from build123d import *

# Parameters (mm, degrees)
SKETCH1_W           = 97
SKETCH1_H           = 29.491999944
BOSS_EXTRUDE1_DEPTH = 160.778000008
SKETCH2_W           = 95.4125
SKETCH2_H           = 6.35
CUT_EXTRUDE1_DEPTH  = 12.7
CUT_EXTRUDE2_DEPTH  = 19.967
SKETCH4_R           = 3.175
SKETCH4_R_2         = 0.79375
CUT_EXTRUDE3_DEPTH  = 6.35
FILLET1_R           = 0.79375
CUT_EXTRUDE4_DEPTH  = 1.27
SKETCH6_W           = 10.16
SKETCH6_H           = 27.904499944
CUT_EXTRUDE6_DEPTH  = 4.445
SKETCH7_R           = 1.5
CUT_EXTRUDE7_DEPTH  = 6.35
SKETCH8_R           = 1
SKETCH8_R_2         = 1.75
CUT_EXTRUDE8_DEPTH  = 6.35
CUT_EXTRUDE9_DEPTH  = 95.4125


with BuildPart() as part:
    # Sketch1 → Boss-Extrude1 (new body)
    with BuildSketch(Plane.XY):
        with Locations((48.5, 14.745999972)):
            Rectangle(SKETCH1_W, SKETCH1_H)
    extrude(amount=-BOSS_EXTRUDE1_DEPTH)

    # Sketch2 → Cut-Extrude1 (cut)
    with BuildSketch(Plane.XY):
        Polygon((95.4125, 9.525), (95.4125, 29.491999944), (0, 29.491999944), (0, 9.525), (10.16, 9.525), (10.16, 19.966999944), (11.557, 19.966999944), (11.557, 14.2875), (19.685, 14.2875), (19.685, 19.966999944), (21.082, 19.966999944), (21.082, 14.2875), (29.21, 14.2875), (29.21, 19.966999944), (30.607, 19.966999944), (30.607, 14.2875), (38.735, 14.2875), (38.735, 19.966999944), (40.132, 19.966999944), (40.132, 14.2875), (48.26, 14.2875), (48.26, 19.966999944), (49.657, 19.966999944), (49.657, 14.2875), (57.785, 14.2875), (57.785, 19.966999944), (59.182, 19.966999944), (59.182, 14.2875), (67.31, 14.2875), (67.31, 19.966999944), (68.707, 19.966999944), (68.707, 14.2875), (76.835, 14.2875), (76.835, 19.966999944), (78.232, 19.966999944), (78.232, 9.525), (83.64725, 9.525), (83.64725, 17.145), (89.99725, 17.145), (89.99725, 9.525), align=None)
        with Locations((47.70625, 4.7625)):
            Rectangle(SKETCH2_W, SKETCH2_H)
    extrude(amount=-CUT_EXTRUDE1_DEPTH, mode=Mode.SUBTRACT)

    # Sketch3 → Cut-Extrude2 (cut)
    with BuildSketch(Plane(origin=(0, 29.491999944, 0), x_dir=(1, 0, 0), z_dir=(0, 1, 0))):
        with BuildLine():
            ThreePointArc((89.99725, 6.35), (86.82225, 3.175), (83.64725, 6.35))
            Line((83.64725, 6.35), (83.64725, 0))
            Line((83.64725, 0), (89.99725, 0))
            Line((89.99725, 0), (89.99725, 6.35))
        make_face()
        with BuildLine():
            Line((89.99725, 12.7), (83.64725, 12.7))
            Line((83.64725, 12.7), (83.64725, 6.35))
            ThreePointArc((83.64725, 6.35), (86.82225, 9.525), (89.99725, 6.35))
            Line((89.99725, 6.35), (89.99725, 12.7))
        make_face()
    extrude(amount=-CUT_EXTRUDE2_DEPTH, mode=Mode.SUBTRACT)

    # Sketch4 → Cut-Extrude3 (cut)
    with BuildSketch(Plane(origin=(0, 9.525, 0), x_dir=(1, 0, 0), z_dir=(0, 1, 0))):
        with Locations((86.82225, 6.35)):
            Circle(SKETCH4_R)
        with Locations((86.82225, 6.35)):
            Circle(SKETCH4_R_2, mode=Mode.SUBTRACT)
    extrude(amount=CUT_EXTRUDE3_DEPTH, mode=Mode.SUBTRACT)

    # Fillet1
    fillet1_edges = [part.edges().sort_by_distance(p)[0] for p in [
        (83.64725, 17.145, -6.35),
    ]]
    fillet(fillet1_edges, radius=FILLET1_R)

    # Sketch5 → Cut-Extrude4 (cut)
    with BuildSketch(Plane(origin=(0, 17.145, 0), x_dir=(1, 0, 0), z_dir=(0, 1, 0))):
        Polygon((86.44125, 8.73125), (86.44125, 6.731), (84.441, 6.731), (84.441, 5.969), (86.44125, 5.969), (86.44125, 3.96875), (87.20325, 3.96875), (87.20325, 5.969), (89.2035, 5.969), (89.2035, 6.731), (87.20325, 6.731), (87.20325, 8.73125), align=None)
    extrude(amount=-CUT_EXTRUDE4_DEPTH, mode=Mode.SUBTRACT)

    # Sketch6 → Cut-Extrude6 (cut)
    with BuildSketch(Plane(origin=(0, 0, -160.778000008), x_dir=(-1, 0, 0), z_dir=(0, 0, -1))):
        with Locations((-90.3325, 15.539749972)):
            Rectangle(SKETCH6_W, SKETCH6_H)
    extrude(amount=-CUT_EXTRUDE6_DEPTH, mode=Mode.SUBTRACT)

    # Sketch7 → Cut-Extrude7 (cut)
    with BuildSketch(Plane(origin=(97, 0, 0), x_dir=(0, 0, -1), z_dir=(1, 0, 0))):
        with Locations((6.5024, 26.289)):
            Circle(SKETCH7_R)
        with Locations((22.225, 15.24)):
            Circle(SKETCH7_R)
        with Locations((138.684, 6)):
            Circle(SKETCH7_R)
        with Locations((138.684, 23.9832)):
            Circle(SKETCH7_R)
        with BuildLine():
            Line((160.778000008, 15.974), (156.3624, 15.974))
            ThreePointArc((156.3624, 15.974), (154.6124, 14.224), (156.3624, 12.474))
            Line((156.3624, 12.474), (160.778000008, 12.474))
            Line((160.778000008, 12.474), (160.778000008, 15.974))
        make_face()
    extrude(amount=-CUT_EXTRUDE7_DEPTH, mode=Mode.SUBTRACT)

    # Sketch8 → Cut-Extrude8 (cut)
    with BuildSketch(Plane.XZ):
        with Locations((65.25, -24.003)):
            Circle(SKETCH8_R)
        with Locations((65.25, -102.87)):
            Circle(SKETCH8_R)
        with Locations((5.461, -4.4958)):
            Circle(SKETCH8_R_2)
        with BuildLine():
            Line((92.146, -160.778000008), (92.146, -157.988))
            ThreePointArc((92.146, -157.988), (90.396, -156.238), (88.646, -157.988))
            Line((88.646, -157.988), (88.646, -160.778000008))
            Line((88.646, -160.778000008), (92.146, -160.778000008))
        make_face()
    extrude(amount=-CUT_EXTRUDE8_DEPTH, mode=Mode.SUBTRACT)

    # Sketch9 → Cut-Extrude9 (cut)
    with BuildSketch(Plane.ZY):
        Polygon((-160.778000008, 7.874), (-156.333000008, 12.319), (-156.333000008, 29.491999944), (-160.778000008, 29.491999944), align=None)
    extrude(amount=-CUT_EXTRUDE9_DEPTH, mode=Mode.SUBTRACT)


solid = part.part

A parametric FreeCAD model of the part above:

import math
import FreeCAD as App
import Part
import Sketcher
from FreeCAD import Vector
Q = App.Units.Quantity


def edges_at(feature, points):
    """Names of the edges that pass closest to the given points."""
    edges = feature.Shape.Edges
    near = lambda p: min(range(len(edges)), key=lambda i: edges[i].distToShape(Part.Vertex(*p))[0])
    return sorted({f"Edge{near(p) + 1}" for p in points})

doc = App.newDocument("Part")
body = doc.addObject("PartDesign::Body", "Body")

# Sketch on XY plane
sketch1 = doc.addObject("Sketcher::SketchObject", "Sketch")
body.addObject(sketch1)
sketch1.AttachmentSupport = (doc.XY_Plane, [""])
sketch1.MapMode = "FlatFace"
sketch1.addGeometry([
    Part.LineSegment(Vector(0, 29.492, 0), Vector(0, 0, 0)),
    Part.LineSegment(Vector(0, 0, 0), Vector(97, 0, 0)),
    Part.LineSegment(Vector(97, 0, 0), Vector(97, 29.492, 0)),
    Part.LineSegment(Vector(97, 29.492, 0), Vector(0, 29.492, 0)),
], False)
sketch1.addConstraint([
    Sketcher.Constraint("Coincident", 0, 2, 1, 1),
    Sketcher.Constraint("Coincident", 1, 2, 2, 1),
    Sketcher.Constraint("Coincident", 2, 2, 3, 1),
    Sketcher.Constraint("Coincident", 3, 2, 0, 1),
    Sketcher.Constraint("Vertical", 0),
    Sketcher.Constraint("Horizontal", 1),
    Sketcher.Constraint("Vertical", 2),
    Sketcher.Constraint("Horizontal", 3),
    Sketcher.Constraint("Coincident", 0, 2, -1, 1),
    Sketcher.Constraint("DistanceX", 1, 1, 1, 2, 97.0),
    Sketcher.Constraint("DistanceY", 0, 2, 0, 1, 29.492),
])
pad1 = doc.addObject("PartDesign::Pad", "Pad")
body.addObject(pad1)
pad1.Profile = sketch1
pad1.Length = 160.778
pad1.Reversed = True

# Sketch on XY plane
sketch2 = doc.addObject("Sketcher::SketchObject", "Sketch001")
body.addObject(sketch2)
sketch2.AttachmentSupport = (doc.XY_Plane, [""])
sketch2.MapMode = "FlatFace"
sketch2.addGeometry([
    Part.LineSegment(Vector(95.4125, 9.525, 0), Vector(95.4125, 29.492, 0)),  # 0
    Part.LineSegment(Vector(95.4125, 29.492, 0), Vector(0, 29.492, 0)),  # 1
    Part.LineSegment(Vector(0, 29.492, 0), Vector(0, 9.525, 0)),  # 2
    Part.LineSegment(Vector(0, 9.525, 0), Vector(10.16, 9.525, 0)),  # 3
    Part.LineSegment(Vector(10.16, 9.525, 0), Vector(10.16, 19.967, 0)),  # 4
    Part.LineSegment(Vector(10.16, 19.967, 0), Vector(11.557, 19.967, 0)),  # 5
    Part.LineSegment(Vector(11.557, 19.967, 0), Vector(11.557, 14.2875, 0)),  # 6
    Part.LineSegment(Vector(11.557, 14.2875, 0), Vector(19.685, 14.2875, 0)),  # 7
    Part.LineSegment(Vector(19.685, 14.2875, 0), Vector(19.685, 19.967, 0)),  # 8
    Part.LineSegment(Vector(19.685, 19.967, 0), Vector(21.082, 19.967, 0)),  # 9
    Part.LineSegment(Vector(21.082, 19.967, 0), Vector(21.082, 14.2875, 0)),  # 10
    Part.LineSegment(Vector(21.082, 14.2875, 0), Vector(29.21, 14.2875, 0)),  # 11
    Part.LineSegment(Vector(29.21, 14.2875, 0), Vector(29.21, 19.967, 0)),  # 12
    Part.LineSegment(Vector(29.21, 19.967, 0), Vector(30.607, 19.967, 0)),  # 13
    Part.LineSegment(Vector(30.607, 19.967, 0), Vector(30.607, 14.2875, 0)),  # 14
    Part.LineSegment(Vector(30.607, 14.2875, 0), Vector(38.735, 14.2875, 0)),  # 15
    Part.LineSegment(Vector(38.735, 14.2875, 0), Vector(38.735, 19.967, 0)),  # 16
    Part.LineSegment(Vector(38.735, 19.967, 0), Vector(40.132, 19.967, 0)),  # 17
    Part.LineSegment(Vector(40.132, 19.967, 0), Vector(40.132, 14.2875, 0)),  # 18
    Part.LineSegment(Vector(40.132, 14.2875, 0), Vector(48.26, 14.2875, 0)),  # 19
    Part.LineSegment(Vector(48.26, 14.2875, 0), Vector(48.26, 19.967, 0)),  # 20
    Part.LineSegment(Vector(48.26, 19.967, 0), Vector(49.657, 19.967, 0)),  # 21
    Part.LineSegment(Vector(49.657, 19.967, 0), Vector(49.657, 14.2875, 0)),  # 22
    Part.LineSegment(Vector(49.657, 14.2875, 0), Vector(57.785, 14.2875, 0)),  # 23
    Part.LineSegment(Vector(57.785, 14.2875, 0), Vector(57.785, 19.967, 0)),  # 24
    Part.LineSegment(Vector(57.785, 19.967, 0), Vector(59.182, 19.967, 0)),  # 25
    Part.LineSegment(Vector(59.182, 19.967, 0), Vector(59.182, 14.2875, 0)),  # 26
    Part.LineSegment(Vector(59.182, 14.2875, 0), Vector(67.31, 14.2875, 0)),  # 27
    Part.LineSegment(Vector(67.31, 14.2875, 0), Vector(67.31, 19.967, 0)),  # 28
    Part.LineSegment(Vector(67.31, 19.967, 0), Vector(68.707, 19.967, 0)),  # 29
    Part.LineSegment(Vector(68.707, 19.967, 0), Vector(68.707, 14.2875, 0)),  # 30
    Part.LineSegment(Vector(68.707, 14.2875, 0), Vector(76.835, 14.2875, 0)),  # 31
    Part.LineSegment(Vector(76.835, 14.2875, 0), Vector(76.835, 19.967, 0)),  # 32
    Part.LineSegment(Vector(76.835, 19.967, 0), Vector(78.232, 19.967, 0)),  # 33
    Part.LineSegment(Vector(78.232, 19.967, 0), Vector(78.232, 9.525, 0)),  # 34
    Part.LineSegment(Vector(78.232, 9.525, 0), Vector(83.64725, 9.525, 0)),  # 35
    Part.LineSegment(Vector(83.64725, 9.525, 0), Vector(83.64725, 17.145, 0)),  # 36
    Part.LineSegment(Vector(83.64725, 17.145, 0), Vector(89.99725, 17.145, 0)),  # 37
    Part.LineSegment(Vector(89.99725, 17.145, 0), Vector(89.99725, 9.525, 0)),  # 38
    Part.LineSegment(Vector(89.99725, 9.525, 0), Vector(95.4125, 9.525, 0)),  # 39
    Part.LineSegment(Vector(0, 7.9375, 0), Vector(0, 1.5875, 0)),  # 40
    Part.LineSegment(Vector(0, 1.5875, 0), Vector(95.4125, 1.5875, 0)),  # 41
    Part.LineSegment(Vector(95.4125, 1.5875, 0), Vector(95.4125, 7.9375, 0)),  # 42
    Part.LineSegment(Vector(95.4125, 7.9375, 0), Vector(0, 7.9375, 0)),  # 43
], False)
sketch2.addConstraint([
    Sketcher.Constraint("Coincident", 0, 2, 1, 1),
    Sketcher.Constraint("Coincident", 1, 2, 2, 1),
    Sketcher.Constraint("Coincident", 2, 2, 3, 1),
    Sketcher.Constraint("Coincident", 3, 2, 4, 1),
    Sketcher.Constraint("Coincident", 4, 2, 5, 1),
    Sketcher.Constraint("Coincident", 5, 2, 6, 1),
    Sketcher.Constraint("Coincident", 6, 2, 7, 1),
    Sketcher.Constraint("Coincident", 7, 2, 8, 1),
    Sketcher.Constraint("Coincident", 8, 2, 9, 1),
    Sketcher.Constraint("Coincident", 9, 2, 10, 1),
    Sketcher.Constraint("Coincident", 10, 2, 11, 1),
    Sketcher.Constraint("Coincident", 11, 2, 12, 1),
    Sketcher.Constraint("Coincident", 12, 2, 13, 1),
    Sketcher.Constraint("Coincident", 13, 2, 14, 1),
    Sketcher.Constraint("Coincident", 14, 2, 15, 1),
    Sketcher.Constraint("Coincident", 15, 2, 16, 1),
    Sketcher.Constraint("Coincident", 16, 2, 17, 1),
    Sketcher.Constraint("Coincident", 17, 2, 18, 1),
    Sketcher.Constraint("Coincident", 18, 2, 19, 1),
    Sketcher.Constraint("Coincident", 19, 2, 20, 1),
    Sketcher.Constraint("Coincident", 20, 2, 21, 1),
    Sketcher.Constraint("Coincident", 21, 2, 22, 1),
    Sketcher.Constraint("Coincident", 22, 2, 23, 1),
    Sketcher.Constraint("Coincident", 23, 2, 24, 1),
    Sketcher.Constraint("Coincident", 24, 2, 25, 1),
    Sketcher.Constraint("Coincident", 25, 2, 26, 1),
    Sketcher.Constraint("Coincident", 26, 2, 27, 1),
    Sketcher.Constraint("Coincident", 27, 2, 28, 1),
    Sketcher.Constraint("Coincident", 28, 2, 29, 1),
    Sketcher.Constraint("Coincident", 29, 2, 30, 1),
    Sketcher.Constraint("Coincident", 30, 2, 31, 1),
    Sketcher.Constraint("Coincident", 31, 2, 32, 1),
    Sketcher.Constraint("Coincident", 32, 2, 33, 1),
    Sketcher.Constraint("Coincident", 33, 2, 34, 1),
    Sketcher.Constraint("Coincident", 34, 2, 35, 1),
    Sketcher.Constraint("Coincident", 35, 2, 36, 1),
    Sketcher.Constraint("Coincident", 36, 2, 37, 1),
    Sketcher.Constraint("Coincident", 37, 2, 38, 1),
    Sketcher.Constraint("Coincident", 38, 2, 39, 1),
    Sketcher.Constraint("Coincident", 39, 2, 0, 1),
    Sketcher.Constraint("Coincident", 40, 2, 41, 1),
    Sketcher.Constraint("Coincident", 41, 2, 42, 1),
    Sketcher.Constraint("Coincident", 42, 2, 43, 1),
    Sketcher.Constraint("Coincident", 43, 2, 40, 1),
    Sketcher.Constraint("Vertical", 0),
    Sketcher.Constraint("Horizontal", 1),
    Sketcher.Constraint("Vertical", 2),
    Sketcher.Constraint("Horizontal", 3),
    Sketcher.Constraint("Vertical", 4),
    Sketcher.Constraint("Horizontal", 5),
    Sketcher.Constraint("Vertical", 6),
    Sketcher.Constraint("Horizontal", 7),
    Sketcher.Constraint("Vertical", 8),
    Sketcher.Constraint("Horizontal", 9),
    Sketcher.Constraint("Vertical", 10),
    Sketcher.Constraint("Horizontal", 11),
    Sketcher.Constraint("Vertical", 12),
    Sketcher.Constraint("Horizontal", 13),
    Sketcher.Constraint("Vertical", 14),
    Sketcher.Constraint("Horizontal", 15),
    Sketcher.Constraint("Vertical", 16),
    Sketcher.Constraint("Horizontal", 17),
    Sketcher.Constraint("Vertical", 18),
    Sketcher.Constraint("Horizontal", 19),
    Sketcher.Constraint("Vertical", 20),
    Sketcher.Constraint("Horizontal", 21),
    Sketcher.Constraint("Vertical", 22),
    Sketcher.Constraint("Horizontal", 23),
    Sketcher.Constraint("Vertical", 24),
    Sketcher.Constraint("Horizontal", 25),
    Sketcher.Constraint("Vertical", 26),
    Sketcher.Constraint("Horizontal", 27),
    Sketcher.Constraint("Vertical", 28),
    Sketcher.Constraint("Horizontal", 29),
    Sketcher.Constraint("Vertical", 30),
    Sketcher.Constraint("Horizontal", 31),
    Sketcher.Constraint("Vertical", 32),
    Sketcher.Constraint("Horizontal", 33),
    Sketcher.Constraint("Vertical", 34),
    Sketcher.Constraint("Horizontal", 35),
    Sketcher.Constraint("Vertical", 36),
    Sketcher.Constraint("Horizontal", 37),
    Sketcher.Constraint("Vertical", 38),
    Sketcher.Constraint("Horizontal", 39),
    Sketcher.Constraint("Vertical", 40),
    Sketcher.Constraint("Horizontal", 41),
    Sketcher.Constraint("Vertical", 42),
    Sketcher.Constraint("Horizontal", 43),
    Sketcher.Constraint("PointOnObject", 1, 2, -2),
    Sketcher.Constraint("PointOnObject", 40, 2, -2),
    Sketcher.Constraint("Horizontal", 5, 2, 8, 2),
    Sketcher.Constraint("Horizontal", 7, 2, 10, 2),
    Sketcher.Constraint("Horizontal", 9, 2, 12, 2),
    Sketcher.Constraint("Horizontal", 11, 2, 14, 2),
    Sketcher.Constraint("Horizontal", 13, 2, 16, 2),
    Sketcher.Constraint("Horizontal", 15, 2, 18, 2),
    Sketcher.Constraint("Horizontal", 17, 2, 20, 2),
    Sketcher.Constraint("Horizontal", 19, 2, 22, 2),
    Sketcher.Constraint("Horizontal", 21, 2, 24, 2),
    Sketcher.Constraint("Horizontal", 23, 2, 26, 2),
    Sketcher.Constraint("Horizontal", 25, 2, 28, 2),
    Sketcher.Constraint("Horizontal", 27, 2, 30, 2),
    Sketcher.Constraint("Horizontal", 29, 2, 32, 2),
    Sketcher.Constraint("Horizontal", 3, 2, 34, 2),
    Sketcher.Constraint("Horizontal", 35, 2, 38, 2),
    Sketcher.Constraint("Vertical", 39, 2, 41, 2),
    Sketcher.Constraint("Equal", 5, 9),
    Sketcher.Constraint("Equal", 7, 11),
    Sketcher.Constraint("Equal", 9, 13),
    Sketcher.Constraint("Equal", 11, 15),
    Sketcher.Constraint("Equal", 13, 17),
    Sketcher.Constraint("Equal", 15, 19),
    Sketcher.Constraint("Equal", 17, 21),
    Sketcher.Constraint("Equal", 19, 23),
    Sketcher.Constraint("Equal", 21, 25),
    Sketcher.Constraint("Equal", 23, 27),
    Sketcher.Constraint("Equal", 25, 29),
    Sketcher.Constraint("Equal", 27, 31),
    Sketcher.Constraint("Equal", 29, 33),
    Sketcher.Constraint("Equal", 35, 39),
    Sketcher.Constraint("Equal", 37, 40),
    Sketcher.Constraint("DistanceX", 3, 1, 3, 2, Q("0.4 in")),
    Sketcher.Constraint("DistanceY", 36, 1, 36, 2, Q("0.3 in")),
    Sketcher.Constraint("DistanceX", 7, 1, 7, 2, Q("0.32 in")),
    Sketcher.Constraint("DistanceX", 37, 1, 37, 2, Q("0.25 in")),
    Sketcher.Constraint("DistanceX", -1, 1, 19, 2, Q("1.9 in")),
    Sketcher.Constraint("DistanceY", 40, 2, 6, 2, Q("0.5 in")),
    Sketcher.Constraint("DistanceY", -1, 1, 2, 2, Q("0.375 in")),
    Sketcher.Constraint("DistanceY", -1, 1, 6, 2, Q("0.5625 in")),
    Sketcher.Constraint("DistanceY", 4, 2, 1, 2, Q("0.375 in")),
    Sketcher.Constraint("DistanceX", 1, 2, 1, 1, 95.4125),
    Sketcher.Constraint("DistanceY", 0, 1, 0, 2, 19.967),
])
pocket1 = doc.addObject("PartDesign::Pocket", "Pocket")
body.addObject(pocket1)
pocket1.Profile = sketch2
pocket1.Length = Q("0.5 in")

# Sketch on XZ plane
sketch3 = doc.addObject("Sketcher::SketchObject", "Sketch002")
body.addObject(sketch3)
sketch3.AttachmentSupport = (doc.XZ_Plane, [""])
sketch3.MapMode = "FlatFace"
sketch3.AttachmentOffset = App.Placement(Vector(0, 0, -29.492), App.Rotation())
sketch3.addGeometry([
    Part.ArcOfCircle(Part.Circle(Vector(86.82225, -6.35, 0), Vector(0, 0, 1), 3.175), math.radians(0), math.radians(180)),  # 0
    Part.LineSegment(Vector(83.64725, -6.35, 0), Vector(83.64725, 0, 0)),  # 1
    Part.LineSegment(Vector(83.64725, 0, 0), Vector(89.99725, 0, 0)),  # 2
    Part.LineSegment(Vector(89.99725, 0, 0), Vector(89.99725, -6.35, 0)),  # 3
    Part.LineSegment(Vector(89.99725, -12.7, 0), Vector(83.64725, -12.7, 0)),  # 4
    Part.LineSegment(Vector(83.64725, -12.7, 0), Vector(83.64725, -6.35, 0)),  # 5
    Part.ArcOfCircle(Part.Circle(Vector(86.82225, -6.35, 0), Vector(0, 0, 1), 3.175), math.radians(180), math.radians(360)),  # 6
    Part.LineSegment(Vector(89.99725, -6.35, 0), Vector(89.99725, -12.7, 0)),  # 7
], False)
sketch3.addConstraint([
    Sketcher.Constraint("Tangent", 0, 2, 1, 1),
    Sketcher.Constraint("Coincident", 1, 2, 2, 1),
    Sketcher.Constraint("Coincident", 2, 2, 3, 1),
    Sketcher.Constraint("Tangent", 3, 2, 0, 1),
    Sketcher.Constraint("Coincident", 4, 2, 5, 1),
    Sketcher.Constraint("Tangent", 5, 2, 6, 1),
    Sketcher.Constraint("Tangent", 6, 2, 7, 1),
    Sketcher.Constraint("Coincident", 7, 2, 4, 1),
    Sketcher.Constraint("Vertical", 1),
    Sketcher.Constraint("Horizontal", 2),
    Sketcher.Constraint("Vertical", 3),
    Sketcher.Constraint("Horizontal", 4),
    Sketcher.Constraint("Vertical", 5),
    Sketcher.Constraint("Vertical", 7),
    Sketcher.Constraint("Coincident", 6, 3, 0, 3),
    Sketcher.Constraint("Equal", 0, 6),
    Sketcher.Constraint("PointOnObject", 1, 2, -1),
    Sketcher.Constraint("Equal", 4, 1),
    Sketcher.Constraint("Equal", 3, 5),
    Sketcher.Constraint("Radius", 0, Q("0.125 in")),
    Sketcher.Constraint("DistanceX", -1, 1, 0, 3, 86.82225),
])
pocket2 = doc.addObject("PartDesign::Pocket", "Pocket001")
body.addObject(pocket2)
pocket2.Profile = sketch3
pocket2.Length = 19.967
pocket2.Reversed = True

# Sketch on XZ plane
sketch4 = doc.addObject("Sketcher::SketchObject", "Sketch003")
body.addObject(sketch4)
sketch4.AttachmentSupport = (doc.XZ_Plane, [""])
sketch4.MapMode = "FlatFace"
sketch4.AttachmentOffset = App.Placement(Vector(0, 0, -0.375 * 25.4), App.Rotation())
sketch4.addGeometry([
    Part.Circle(Vector(86.82225, -6.35, 0), Vector(0, 0, 1), 3.175),
    Part.Circle(Vector(86.82225, -6.35, 0), Vector(0, 0, 1), 0.79375),
], False)
sketch4.addConstraint([
    Sketcher.Constraint("Coincident", 1, 3, 0, 3),
    Sketcher.Constraint("Diameter", 0, Q("0.25 in")),
    Sketcher.Constraint("Diameter", 1, Q("0.0625 in")),
    Sketcher.Constraint("DistanceY", 0, 3, -1, 1, Q("0.25 in")),
    Sketcher.Constraint("DistanceX", -1, 1, 0, 3, 86.82225),
])
pocket3 = doc.addObject("PartDesign::Pocket", "Pocket002")
body.addObject(pocket3)
pocket3.Profile = sketch4
pocket3.Length = Q("0.25 in")
doc.recompute()

fillet = doc.addObject("PartDesign::Fillet", "Fillet")
body.addObject(fillet)
fillet.Base = (pocket3, edges_at(pocket3, [(83.647, 17.145, -6.35)]))
fillet.Radius = Q("0.03125 in")

# Sketch on XZ plane
sketch5 = doc.addObject("Sketcher::SketchObject", "Sketch004")
body.addObject(sketch5)
sketch5.AttachmentSupport = (doc.XZ_Plane, [""])
sketch5.MapMode = "FlatFace"
sketch5.AttachmentOffset = App.Placement(Vector(0, 0, -0.675 * 25.4), App.Rotation())
sketch5.addGeometry([
    Part.LineSegment(Vector(86.44125, -8.73125, 0), Vector(86.44125, -6.731, 0)),  # 0
    Part.LineSegment(Vector(86.44125, -6.731, 0), Vector(84.441, -6.731, 0)),  # 1
    Part.LineSegment(Vector(84.441, -6.731, 0), Vector(84.441, -5.969, 0)),  # 2
    Part.LineSegment(Vector(84.441, -5.969, 0), Vector(86.44125, -5.969, 0)),  # 3
    Part.LineSegment(Vector(86.44125, -5.969, 0), Vector(86.44125, -3.96875, 0)),  # 4
    Part.LineSegment(Vector(86.44125, -3.96875, 0), Vector(87.20325, -3.96875, 0)),  # 5
    Part.LineSegment(Vector(87.20325, -3.96875, 0), Vector(87.20325, -5.969, 0)),  # 6
    Part.LineSegment(Vector(87.20325, -5.969, 0), Vector(89.2035, -5.969, 0)),  # 7
    Part.LineSegment(Vector(89.2035, -5.969, 0), Vector(89.2035, -6.731, 0)),  # 8
    Part.LineSegment(Vector(89.2035, -6.731, 0), Vector(87.20325, -6.731, 0)),  # 9
    Part.LineSegment(Vector(87.20325, -6.731, 0), Vector(87.20325, -8.73125, 0)),  # 10
    Part.LineSegment(Vector(87.20325, -8.73125, 0), Vector(86.44125, -8.73125, 0)),  # 11
], False)
sketch5.addConstraint([
    Sketcher.Constraint("Coincident", 0, 2, 1, 1),
    Sketcher.Constraint("Coincident", 1, 2, 2, 1),
    Sketcher.Constraint("Coincident", 2, 2, 3, 1),
    Sketcher.Constraint("Coincident", 3, 2, 4, 1),
    Sketcher.Constraint("Coincident", 4, 2, 5, 1),
    Sketcher.Constraint("Coincident", 5, 2, 6, 1),
    Sketcher.Constraint("Coincident", 6, 2, 7, 1),
    Sketcher.Constraint("Coincident", 7, 2, 8, 1),
    Sketcher.Constraint("Coincident", 8, 2, 9, 1),
    Sketcher.Constraint("Coincident", 9, 2, 10, 1),
    Sketcher.Constraint("Coincident", 10, 2, 11, 1),
    Sketcher.Constraint("Coincident", 11, 2, 0, 1),
    Sketcher.Constraint("Vertical", 0),
    Sketcher.Constraint("Horizontal", 1),
    Sketcher.Constraint("Vertical", 2),
    Sketcher.Constraint("Horizontal", 3),
    Sketcher.Constraint("Vertical", 4),
    Sketcher.Constraint("Horizontal", 5),
    Sketcher.Constraint("Vertical", 6),
    Sketcher.Constraint("Horizontal", 7),
    Sketcher.Constraint("Vertical", 8),
    Sketcher.Constraint("Horizontal", 9),
    Sketcher.Constraint("Vertical", 10),
    Sketcher.Constraint("Horizontal", 11),
    Sketcher.Constraint("Horizontal", 3, 2, 6, 2),
    Sketcher.Constraint("Horizontal", 1, 2, 8, 2),
    Sketcher.Constraint("Vertical", 0, 2, 3, 2),
    Sketcher.Constraint("Vertical", 6, 2, 9, 2),
    Sketcher.Constraint("Equal", 3, 7),
    Sketcher.Constraint("Equal", 9, 0),
    Sketcher.Constraint("Equal", 11, 2),
    Sketcher.Constraint("Equal", 0, 4),
    Sketcher.Constraint("DistanceX", 5, 1, 5, 2, Q("0.03 in")),
    Sketcher.Constraint("DistanceY", 0, 2, -1, 1, Q("0.265 in")),
    Sketcher.Constraint("DistanceY", 4, 2, -1, 1, Q("0.15625 in")),
    Sketcher.Constraint("DistanceX", -1, 1, 1, 2, 84.441),
])
pocket4 = doc.addObject("PartDesign::Pocket", "Pocket003")
body.addObject(pocket4)
pocket4.Profile = sketch5
pocket4.Length = Q("0.05 in")
pocket4.Reversed = True

# Sketch on XY plane
sketch6 = doc.addObject("Sketcher::SketchObject", "Sketch005")
body.addObject(sketch6)
sketch6.AttachmentSupport = (doc.XY_Plane, [""])
sketch6.MapMode = "FlatFace"
sketch6.AttachmentOffset = App.Placement(Vector(0, 0, -160.778), App.Rotation())
sketch6.addGeometry([
    Part.LineSegment(Vector(95.4125, 29.492, 0), Vector(95.4125, 1.5875, 0)),
    Part.LineSegment(Vector(95.4125, 1.5875, 0), Vector(85.2525, 1.5875, 0)),
    Part.LineSegment(Vector(85.2525, 1.5875, 0), Vector(85.2525, 29.492, 0)),
    Part.LineSegment(Vector(85.2525, 29.492, 0), Vector(95.4125, 29.492, 0)),
], False)
sketch6.addConstraint([
    Sketcher.Constraint("Coincident", 0, 2, 1, 1),
    Sketcher.Constraint("Coincident", 1, 2, 2, 1),
    Sketcher.Constraint("Coincident", 2, 2, 3, 1),
    Sketcher.Constraint("Coincident", 3, 2, 0, 1),
    Sketcher.Constraint("Vertical", 0),
    Sketcher.Constraint("Horizontal", 1),
    Sketcher.Constraint("Vertical", 2),
    Sketcher.Constraint("Horizontal", 3),
    Sketcher.Constraint("DistanceX", 1, 2, 1, 1, Q("0.4 in")),
    Sketcher.Constraint("DistanceY", -1, 1, 0, 2, Q("0.0625 in")),
    Sketcher.Constraint("DistanceY", 0, 2, 0, 1, 27.9045),
    Sketcher.Constraint("DistanceX", -1, 1, 0, 2, 95.4125),
])
pocket5 = doc.addObject("PartDesign::Pocket", "Pocket004")
body.addObject(pocket5)
pocket5.Profile = sketch6
pocket5.Length = Q("0.175 in")
pocket5.Reversed = True

# Sketch on YZ plane
sketch7 = doc.addObject("Sketcher::SketchObject", "Sketch006")
body.addObject(sketch7)
sketch7.AttachmentSupport = (doc.YZ_Plane, [""])
sketch7.MapMode = "FlatFace"
sketch7.AttachmentOffset = App.Placement(Vector(0, 0, 97), App.Rotation())
sketch7.addGeometry([
    Part.Circle(Vector(26.289, -6.5024, 0), Vector(0, 0, 1), 1.5),  # 0
    Part.Circle(Vector(15.24, -22.225, 0), Vector(0, 0, 1), 1.5),  # 1
    Part.Circle(Vector(6, -138.684, 0), Vector(0, 0, 1), 1.5),  # 2
    Part.Circle(Vector(23.9832, -138.684, 0), Vector(0, 0, 1), 1.5),  # 3
    Part.LineSegment(Vector(15.974, -160.778, 0), Vector(15.974, -156.3624, 0)),  # 4
    Part.ArcOfCircle(Part.Circle(Vector(14.224, -156.3624, 0), Vector(0, 0, 1), 1.75), math.radians(0), math.radians(180)),  # 5
    Part.LineSegment(Vector(12.474, -156.3624, 0), Vector(12.474, -160.778, 0)),  # 6
    Part.LineSegment(Vector(12.474, -160.778, 0), Vector(15.974, -160.778, 0)),  # 7
], False)
sketch7.addConstraint([
    Sketcher.Constraint("Tangent", 4, 2, 5, 1),
    Sketcher.Constraint("Tangent", 5, 2, 6, 1),
    Sketcher.Constraint("Coincident", 6, 2, 7, 1),
    Sketcher.Constraint("Coincident", 7, 2, 4, 1),
    Sketcher.Constraint("Vertical", 4),
    Sketcher.Constraint("Vertical", 6),
    Sketcher.Constraint("Horizontal", 7),
    Sketcher.Constraint("Equal", 0, 1),
    Sketcher.Constraint("Equal", 1, 2),
    Sketcher.Constraint("Equal", 2, 3),
    Sketcher.Constraint("Horizontal", 2, 3, 3, 3),
    Sketcher.Constraint("DistanceX", -1, 1, 1, 3, Q("0.6 in")),
    Sketcher.Constraint("DistanceY", 5, 3, 0, 3, Q("5.9 in")),
    Sketcher.Constraint("Diameter", 0, 3.0),
    Sketcher.Constraint("DistanceY", 2, 3, -1, 1, Q("5.46 in")),
    Sketcher.Constraint("DistanceX", -1, 1, 5, 3, Q("0.56 in")),
    Sketcher.Constraint("Radius", 5, 1.75),
    Sketcher.Constraint("DistanceX", -1, 1, 0, 3, Q("1.035 in")),
    Sketcher.Constraint("DistanceY", 0, 3, -1, 1, Q("0.256 in")),
    Sketcher.Constraint("DistanceY", 1, 3, -1, 1, Q("0.875 in")),
    Sketcher.Constraint("DistanceX", 2, 3, 3, 3, Q("0.708 in")),
    Sketcher.Constraint("DistanceY", 4, 1, 4, 2, 4.4156),
    Sketcher.Constraint("DistanceX", -1, 1, 2, 3, 6.0),
])
pocket6 = doc.addObject("PartDesign::Pocket", "Pocket005")
body.addObject(pocket6)
pocket6.Profile = sketch7
pocket6.Length = Q("0.25 in")

# Sketch on XZ plane
sketch8 = doc.addObject("Sketcher::SketchObject", "Sketch007")
body.addObject(sketch8)
sketch8.AttachmentSupport = (doc.XZ_Plane, [""])
sketch8.MapMode = "FlatFace"
sketch8.addGeometry([
    Part.Circle(Vector(65.25, -24.003, 0), Vector(0, 0, 1), 1),  # 0
    Part.Circle(Vector(65.25, -102.87, 0), Vector(0, 0, 1), 1),  # 1
    Part.Circle(Vector(5.461, -4.4958, 0), Vector(0, 0, 1), 1.75),  # 2
    Part.LineSegment(Vector(92.146, -160.778, 0), Vector(92.146, -157.988, 0)),  # 3
    Part.ArcOfCircle(Part.Circle(Vector(90.396, -157.988, 0), Vector(0, 0, 1), 1.75), math.radians(0), math.radians(180)),  # 4
    Part.LineSegment(Vector(88.646, -157.988, 0), Vector(88.646, -160.778, 0)),  # 5
    Part.LineSegment(Vector(88.646, -160.778, 0), Vector(92.146, -160.778, 0)),  # 6
], False)
sketch8.addConstraint([
    Sketcher.Constraint("Tangent", 3, 2, 4, 1),
    Sketcher.Constraint("Tangent", 4, 2, 5, 1),
    Sketcher.Constraint("Coincident", 5, 2, 6, 1),
    Sketcher.Constraint("Coincident", 6, 2, 3, 1),
    Sketcher.Constraint("Vertical", 3),
    Sketcher.Constraint("Vertical", 5),
    Sketcher.Constraint("Horizontal", 6),
    Sketcher.Constraint("Equal", 0, 1),
    Sketcher.Constraint("Equal", 2, 4),
    Sketcher.Constraint("Vertical", 0, 3, 1, 3),
    Sketcher.Constraint("Diameter", 0, 2.0),
    Sketcher.Constraint("Diameter", 2, 3.5),
    Sketcher.Constraint("DistanceY", 1, 3, -1, 1, Q("4.05 in")),
    Sketcher.Constraint("DistanceY", 4, 3, -1, 1, Q("6.22 in")),
    Sketcher.Constraint("DistanceX", -1, 1, 4, 2, Q("3.49 in")),
    Sketcher.Constraint("DistanceX", 1, 3, 4, 3, Q("0.99 in")),
    Sketcher.Constraint("DistanceY", 0, 3, -1, 1, Q("0.945 in")),
    Sketcher.Constraint("DistanceX", -1, 1, 2, 3, Q("0.215 in")),
    Sketcher.Constraint("DistanceY", 2, 3, -1, 1, Q("0.177 in")),
    Sketcher.Constraint("DistanceY", 3, 1, 3, 2, 2.79),
])
pocket7 = doc.addObject("PartDesign::Pocket", "Pocket006")
body.addObject(pocket7)
pocket7.Profile = sketch8
pocket7.Length = Q("0.25 in")

# Sketch on YZ plane
sketch9 = doc.addObject("Sketcher::SketchObject", "Sketch008")
body.addObject(sketch9)
sketch9.AttachmentSupport = (doc.YZ_Plane, [""])
sketch9.MapMode = "FlatFace"
sketch9.addGeometry([
    Part.LineSegment(Vector(7.874, -160.778, 0), Vector(12.319, -156.333, 0)),
    Part.LineSegment(Vector(12.319, -156.333, 0), Vector(29.492, -156.333, 0)),
    Part.LineSegment(Vector(29.492, -156.333, 0), Vector(29.492, -160.778, 0)),
    Part.LineSegment(Vector(29.492, -160.778, 0), Vector(7.874, -160.778, 0)),
], False)
sketch9.addConstraint([
    Sketcher.Constraint("Coincident", 0, 2, 1, 1),
    Sketcher.Constraint("Coincident", 1, 2, 2, 1),
    Sketcher.Constraint("Coincident", 2, 2, 3, 1),
    Sketcher.Constraint("Coincident", 3, 2, 0, 1),
    Sketcher.Constraint("Horizontal", 1),
    Sketcher.Constraint("Vertical", 2),
    Sketcher.Constraint("Horizontal", 3),
    Sketcher.Constraint("Angle", 0, Q("45 deg")),
    Sketcher.Constraint("DistanceY", 2, 2, 2, 1, Q("0.175 in")),
    Sketcher.Constraint("DistanceX", -1, 1, 3, 2, Q("0.31 in")),
    Sketcher.Constraint("DistanceX", 1, 1, 1, 2, 17.173),
    Sketcher.Constraint("DistanceY", 0, 2, -1, 1, 156.333),
])
pocket8 = doc.addObject("PartDesign::Pocket", "Pocket007")
body.addObject(pocket8)
pocket8.Profile = sketch9
pocket8.Length = 95.4125
pocket8.Reversed = True

doc.recompute()
